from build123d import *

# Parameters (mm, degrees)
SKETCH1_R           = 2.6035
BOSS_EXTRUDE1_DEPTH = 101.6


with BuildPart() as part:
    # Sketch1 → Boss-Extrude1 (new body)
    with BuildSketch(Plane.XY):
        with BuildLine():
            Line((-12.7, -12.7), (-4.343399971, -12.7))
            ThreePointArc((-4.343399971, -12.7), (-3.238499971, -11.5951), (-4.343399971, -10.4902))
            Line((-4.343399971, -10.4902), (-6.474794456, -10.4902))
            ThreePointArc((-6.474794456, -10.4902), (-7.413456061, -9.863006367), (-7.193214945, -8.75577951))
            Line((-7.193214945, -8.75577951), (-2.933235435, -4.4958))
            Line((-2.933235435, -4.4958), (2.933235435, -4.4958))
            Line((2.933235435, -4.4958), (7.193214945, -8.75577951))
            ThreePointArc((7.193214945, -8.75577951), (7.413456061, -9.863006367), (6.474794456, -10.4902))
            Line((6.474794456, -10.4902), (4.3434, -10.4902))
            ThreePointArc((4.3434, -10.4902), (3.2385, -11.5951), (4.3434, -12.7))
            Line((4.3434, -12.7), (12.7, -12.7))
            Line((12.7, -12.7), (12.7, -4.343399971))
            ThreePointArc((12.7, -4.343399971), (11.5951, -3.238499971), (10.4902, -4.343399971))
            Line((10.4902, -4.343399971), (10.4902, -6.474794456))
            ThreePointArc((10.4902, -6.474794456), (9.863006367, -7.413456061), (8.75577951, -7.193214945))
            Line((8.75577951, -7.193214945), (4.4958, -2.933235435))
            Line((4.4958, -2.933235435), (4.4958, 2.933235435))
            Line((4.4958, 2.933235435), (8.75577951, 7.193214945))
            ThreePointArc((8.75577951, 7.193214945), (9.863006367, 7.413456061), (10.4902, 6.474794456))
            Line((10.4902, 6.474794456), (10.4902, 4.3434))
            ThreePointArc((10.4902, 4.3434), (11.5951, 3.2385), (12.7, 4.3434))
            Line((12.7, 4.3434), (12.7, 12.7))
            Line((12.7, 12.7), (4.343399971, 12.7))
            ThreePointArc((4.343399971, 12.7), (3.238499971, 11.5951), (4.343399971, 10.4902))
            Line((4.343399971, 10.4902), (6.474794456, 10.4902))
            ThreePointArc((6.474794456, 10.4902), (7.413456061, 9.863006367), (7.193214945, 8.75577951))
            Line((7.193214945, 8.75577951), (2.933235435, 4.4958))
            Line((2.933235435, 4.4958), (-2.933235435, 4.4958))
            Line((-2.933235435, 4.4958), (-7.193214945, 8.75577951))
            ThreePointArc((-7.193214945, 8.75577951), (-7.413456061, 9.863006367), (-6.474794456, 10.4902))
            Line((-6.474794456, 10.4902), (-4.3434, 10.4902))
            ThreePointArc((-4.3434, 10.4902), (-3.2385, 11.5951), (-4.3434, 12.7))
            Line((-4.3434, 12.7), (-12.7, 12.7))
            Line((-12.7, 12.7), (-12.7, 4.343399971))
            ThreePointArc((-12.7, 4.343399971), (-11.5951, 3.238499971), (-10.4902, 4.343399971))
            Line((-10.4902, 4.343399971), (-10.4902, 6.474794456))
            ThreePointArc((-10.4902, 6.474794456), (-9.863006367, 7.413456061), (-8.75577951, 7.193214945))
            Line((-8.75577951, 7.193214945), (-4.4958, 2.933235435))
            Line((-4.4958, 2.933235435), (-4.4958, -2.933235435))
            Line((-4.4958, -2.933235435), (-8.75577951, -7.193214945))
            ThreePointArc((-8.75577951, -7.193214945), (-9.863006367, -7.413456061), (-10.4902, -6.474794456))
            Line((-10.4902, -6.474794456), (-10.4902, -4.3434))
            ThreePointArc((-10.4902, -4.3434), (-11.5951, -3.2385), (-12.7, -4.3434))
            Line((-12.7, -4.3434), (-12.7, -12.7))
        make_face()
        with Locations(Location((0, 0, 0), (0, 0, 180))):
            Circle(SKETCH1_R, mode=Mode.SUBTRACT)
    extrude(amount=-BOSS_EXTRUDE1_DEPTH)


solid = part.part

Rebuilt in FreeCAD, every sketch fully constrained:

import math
import FreeCAD as App
import Part
import Sketcher
Q = App.Units.Quantity

doc = App.newDocument("Part")
body = doc.addObject("PartDesign::Body", "Body")

# Sketch on XY plane
sketch1 = body.newObject("Sketcher::SketchObject", "Sketch")
sketch1.AttachmentSupport = (doc.getObject("XY_Plane"), [""])
sketch1.MapMode = "FlatFace"
sketch1.addGeometry([
    Part.LineSegment(App.Vector(-12.7, -12.7, 0), App.Vector(-4.3, -12.7, 0)),  # 0
    Part.ArcOfCircle(Part.Circle(App.Vector(-4.3, -11.6, 0), App.Vector(0, 0, 1), 1.1), math.radians(-90), math.radians(90)),  # 1
    Part.LineSegment(App.Vector(-4.3, -10.5, 0), App.Vector(-6.5, -10.5, 0)),  # 2
    Part.ArcOfCircle(Part.Circle(App.Vector(-6.5, -9.5, 0), App.Vector(0, 0, 1), 1), math.radians(135), math.radians(270)),  # 3
    Part.LineSegment(App.Vector(-7.2, -8.8, 0), App.Vector(-2.9, -4.5, 0)),  # 4
    Part.LineSegment(App.Vector(-2.9, -4.5, 0), App.Vector(2.9, -4.5, 0)),  # 5
    Part.LineSegment(App.Vector(2.9, -4.5, 0), App.Vector(7.2, -8.8, 0)),  # 6
    Part.ArcOfCircle(Part.Circle(App.Vector(6.5, -9.5, 0), App.Vector(0, 0, 1), 1), math.radians(-90), math.radians(45)),  # 7
    Part.LineSegment(App.Vector(6.5, -10.5, 0), App.Vector(4.3, -10.5, 0)),  # 8
    Part.ArcOfCircle(Part.Circle(App.Vector(4.3, -11.6, 0), App.Vector(0, 0, 1), 1.1), math.radians(90), math.radians(270)),  # 9
    Part.LineSegment(App.Vector(4.3, -12.7, 0), App.Vector(12.7, -12.7, 0)),  # 10
    Part.LineSegment(App.Vector(12.7, -12.7, 0), App.Vector(12.7, -4.3, 0)),  # 11
    Part.ArcOfCircle(Part.Circle(App.Vector(11.6, -4.3, 0), App.Vector(0, 0, 1), 1.1), math.radians(0), math.radians(180)),  # 12
    Part.LineSegment(App.Vector(10.5, -4.3, 0), App.Vector(10.5, -6.5, 0)),  # 13
    Part.ArcOfCircle(Part.Circle(App.Vector(9.5, -6.5, 0), App.Vector(0, 0, 1), 1), math.radians(-135), math.radians(0)),  # 14
    Part.LineSegment(App.Vector(8.8, -7.2, 0), App.Vector(4.5, -2.9, 0)),  # 15
    Part.LineSegment(App.Vector(4.5, -2.9, 0), App.Vector(4.5, 2.9, 0)),  # 16
    Part.LineSegment(App.Vector(4.5, 2.9, 0), App.Vector(8.8, 7.2, 0)),  # 17
    Part.ArcOfCircle(Part.Circle(App.Vector(9.5, 6.5, 0), App.Vector(0, 0, 1), 1), math.radians(0), math.radians(135)),  # 18
    Part.LineSegment(App.Vector(10.5, 6.5, 0), App.Vector(10.5, 4.3, 0)),  # 19
    Part.ArcOfCircle(Part.Circle(App.Vector(11.6, 4.3, 0), App.Vector(0, 0, 1), 1.1), math.radians(180), math.radians(360)),  # 20
    Part.LineSegment(App.Vector(12.7, 4.3, 0), App.Vector(12.7, 12.7, 0)),  # 21
    Part.LineSegment(App.Vector(12.7, 12.7, 0), App.Vector(4.3, 12.7, 0)),  # 22
    Part.ArcOfCircle(Part.Circle(App.Vector(4.3, 11.6, 0), App.Vector(0, 0, 1), 1.1), math.radians(90), math.radians(270)),  # 23
    Part.LineSegment(App.Vector(4.3, 10.5, 0), App.Vector(6.5, 10.5, 0)),  # 24
    Part.ArcOfCircle(Part.Circle(App.Vector(6.5, 9.5, 0), App.Vector(0, 0, 1), 1), math.radians(-45), math.radians(90)),  # 25
    Part.LineSegment(App.Vector(7.2, 8.8, 0), App.Vector(2.9, 4.5, 0)),  # 26
    Part.LineSegment(App.Vector(2.9, 4.5, 0), App.Vector(-2.9, 4.5, 0)),  # 27
    Part.LineSegment(App.Vector(-2.9, 4.5, 0), App.Vector(-7.2, 8.8, 0)),  # 28
    Part.ArcOfCircle(Part.Circle(App.Vector(-6.5, 9.5, 0), App.Vector(0, 0, 1), 1), math.radians(90), math.radians(225)),  # 29
    Part.LineSegment(App.Vector(-6.5, 10.5, 0), App.Vector(-4.3, 10.5, 0)),  # 30
    Part.ArcOfCircle(Part.Circle(App.Vector(-4.3, 11.6, 0), App.Vector(0, 0, 1), 1.1), math.radians(-90), math.radians(90)),  # 31
    Part.LineSegment(App.Vector(-4.3, 12.7, 0), App.Vector(-12.7, 12.7, 0)),  # 32
    Part.LineSegment(App.Vector(-12.7, 12.7, 0), App.Vector(-12.7, 4.3, 0)),  # 33
    Part.ArcOfCircle(Part.Circle(App.Vector(-11.6, 4.3, 0), App.Vector(0, 0, 1), 1.1), math.radians(180), math.radians(360)),  # 34
    Part.LineSegment(App.Vector(-10.5, 4.3, 0), App.Vector(-10.5, 6.5, 0)),  # 35
    Part.ArcOfCircle(Part.Circle(App.Vector(-9.5, 6.5, 0), App.Vector(0, 0, 1), 1), math.radians(45), math.radians(180)),  # 36
    Part.LineSegment(App.Vector(-8.8, 7.2, 0), App.Vector(-4.5, 2.9, 0)),  # 37
    Part.LineSegment(App.Vector(-4.5, 2.9, 0), App.Vector(-4.5, -2.9, 0)),  # 38
    Part.LineSegment(App.Vector(-4.5, -2.9, 0), App.Vector(-8.8, -7.2, 0)),  # 39
    Part.ArcOfCircle(Part.Circle(App.Vector(-9.5, -6.5, 0), App.Vector(0, 0, 1), 1), math.radians(180), math.radians(315)),  # 40
    Part.LineSegment(App.Vector(-10.5, -6.5, 0), App.Vector(-10.5, -4.3, 0)),  # 41
    Part.ArcOfCircle(Part.Circle(App.Vector(-11.6, -4.3, 0), App.Vector(0, 0, 1), 1.1), math.radians(0), math.radians(180)),  # 42
    Part.LineSegment(App.Vector(-12.7, -4.3, 0), App.Vector(-12.7, -12.7, 0)),  # 43
    Part.Circle(App.Vector(0, 0, 0), App.Vector(0, 0, 1), 2.6),  # 44
], False)
sketch1.addConstraint([
    Sketcher.Constraint("Tangent", 0, 2, 1, 1),
    Sketcher.Constraint("Tangent", 1, 2, 2, 1),
    Sketcher.Constraint("Tangent", 2, 2, 3, 2),
    Sketcher.Constraint("Tangent", 3, 1, 4, 1),
    Sketcher.Constraint("Coincident", 4, 2, 5, 1),
    Sketcher.Constraint("Coincident", 5, 2, 6, 1),
    Sketcher.Constraint("Tangent", 6, 2, 7, 2),
    Sketcher.Constraint("Tangent", 7, 1, 8, 1),
    Sketcher.Constraint("Tangent", 8, 2, 9, 1),
    Sketcher.Constraint("Tangent", 9, 2, 10, 1),
    Sketcher.Constraint("Coincident", 10, 2, 11, 1),
    Sketcher.Constraint("Tangent", 11, 2, 12, 1),
    Sketcher.Constraint("Tangent", 12, 2, 13, 1),
    Sketcher.Constraint("Tangent", 13, 2, 14, 2),
    Sketcher.Constraint("Tangent", 14, 1, 15, 1),
    Sketcher.Constraint("Coincident", 15, 2, 16, 1),
    Sketcher.Constraint("Coincident", 16, 2, 17, 1),
    Sketcher.Constraint("Tangent", 17, 2, 18, 2),
    Sketcher.Constraint("Tangent", 18, 1, 19, 1),
    Sketcher.Constraint("Tangent", 19, 2, 20, 1),
    Sketcher.Constraint("Tangent", 20, 2, 21, 1),
    Sketcher.Constraint("Coincident", 21, 2, 22, 1),
    Sketcher.Constraint("Tangent", 22, 2, 23, 1),
    Sketcher.Constraint("Tangent", 23, 2, 24, 1),
    Sketcher.Constraint("Tangent", 24, 2, 25, 2),
    Sketcher.Constraint("Tangent", 25, 1, 26, 1),
    Sketcher.Constraint("Coincident", 26, 2, 27, 1),
    Sketcher.Constraint("Coincident", 27, 2, 28, 1),
    Sketcher.Constraint("Tangent", 28, 2, 29, 2),
    Sketcher.Constraint("Tangent", 29, 1, 30, 1),
    Sketcher.Constraint("Tangent", 30, 2, 31, 1),
    Sketcher.Constraint("Tangent", 31, 2, 32, 1),
    Sketcher.Constraint("Coincident", 32, 2, 33, 1),
    Sketcher.Constraint("Tangent", 33, 2, 34, 1),
    Sketcher.Constraint("Tangent", 34, 2, 35, 1),
    Sketcher.Constraint("Tangent", 35, 2, 36, 2),
    Sketcher.Constraint("Tangent", 36, 1, 37, 1),
    Sketcher.Constraint("Coincident", 37, 2, 38, 1),
    Sketcher.Constraint("Coincident", 38, 2, 39, 1),
    Sketcher.Constraint("Tangent", 39, 2, 40, 2),
    Sketcher.Constraint("Tangent", 40, 1, 41, 1),
    Sketcher.Constraint("Tangent", 41, 2, 42, 1),
    Sketcher.Constraint("Tangent", 42, 2, 43, 1),
    Sketcher.Constraint("Coincident", 43, 2, 0, 1),
    Sketcher.Constraint("Horizontal", 0),
    Sketcher.Constraint("Horizontal", 2),
    Sketcher.Constraint("Horizontal", 5),
    Sketcher.Constraint("Horizontal", 8),
    Sketcher.Constraint("Horizontal", 10),
    Sketcher.Constraint("Vertical", 11),
    Sketcher.Constraint("Vertical", 13),
    Sketcher.Constraint("Vertical", 16),
    Sketcher.Constraint("Vertical", 19),
    Sketcher.Constraint("Vertical", 21),
    Sketcher.Constraint("Horizontal", 22),
    Sketcher.Constraint("Horizontal", 24),
    Sketcher.Constraint("Horizontal", 27),
    Sketcher.Constraint("Horizontal", 30),
    Sketcher.Constraint("Horizontal", 32),
    Sketcher.Constraint("Vertical", 33),
    Sketcher.Constraint("Vertical", 35),
    Sketcher.Constraint("Vertical", 38),
    Sketcher.Constraint("Vertical", 41),
    Sketcher.Constraint("Vertical", 43),
    Sketcher.Constraint("Coincident", 44, 3, -1, 1),
    Sketcher.Constraint("Equal", 3, 7),
    Sketcher.Constraint("Equal", 1, 9),
    Sketcher.Constraint("Equal", 9, 12),
    Sketcher.Constraint("Equal", 7, 14),
    Sketcher.Constraint("Equal", 14, 18),
    Sketcher.Constraint("Equal", 12, 20),
    Sketcher.Constraint("Equal", 20, 23),
    Sketcher.Constraint("Equal", 18, 25),
    Sketcher.Constraint("Equal", 25, 29),
    Sketcher.Constraint("Equal", 23, 31),
    Sketcher.Constraint("Equal", 31, 34),
    Sketcher.Constraint("Equal", 29, 36),
    Sketcher.Constraint("Equal", 36, 40),
    Sketcher.Constraint("Equal", 34, 42),
    Sketcher.Constraint("Symmetric", 1, 3, 23, 3, -1, 1),
    Sketcher.Constraint("Symmetric", 7, 3, 29, 3, -1, 1),
    Sketcher.Constraint("Symmetric", 12, 3, 34, 3, -1, 1),
    Sketcher.Constraint("Symmetric", 18, 3, 40, 3, -1, 1),
    Sketcher.Constraint("Symmetric", 3, 1, 25, 1, -1, 1),
    Sketcher.Constraint("Symmetric", 5, 2, 27, 2, -1, 1),
    Sketcher.Constraint("Symmetric", 14, 1, 36, 1, -1, 1),
    Sketcher.Constraint("Symmetric", 16, 2, 38, 2, -1, 1),
    Sketcher.Constraint("Symmetric", 3, 3, 7, 3, -2),
    Sketcher.Constraint("Symmetric", 20, 3, 34, 3, -2),
    Sketcher.Constraint("Symmetric", 17, 2, 36, 1, -2),
    Sketcher.Constraint("Perpendicular", 4, 6),
    Sketcher.Constraint("Parallel", 6, 15),
    Sketcher.Constraint("Perpendicular", 15, 17),
    Sketcher.Constraint("Horizontal", 12, 3, 42, 3),
    Sketcher.Constraint("Vertical", 9, 3, 23, 3),
    Sketcher.Constraint("Vertical", 1, 3, 31, 3),
    Sketcher.Constraint("Equal", 32, 11),
    Sketcher.Constraint("Equal", 30, 13),
    Sketcher.Constraint("Equal", 27, 16),
    Sketcher.Constraint("Equal", 6, 15),
    Sketcher.Constraint("Radius", 3, Q("0.04 in")),
    Sketcher.Constraint("Diameter", 44, Q("0.205 in")),
    Sketcher.Constraint("DistanceY", 0, 2, -1, 1, Q("0.5 in")),
    Sketcher.Constraint("Radius", 1, Q("0.0435 in")),
    Sketcher.Constraint("DistanceX", 0, 1, 0, 2, Q("0.329 in")),
    Sketcher.Constraint("DistanceY", 4, 2, -1, 1, Q("0.177 in")),
    Sketcher.Constraint("DistanceX", 5, 1, 5, 2, Q("5.866471 mm")),
])
pad1 = body.newObject("PartDesign::Pad", "Pad")
pad1.Profile = sketch1
pad1.Length = Q("4 in")
pad1.Reversed = True

doc.recompute()
